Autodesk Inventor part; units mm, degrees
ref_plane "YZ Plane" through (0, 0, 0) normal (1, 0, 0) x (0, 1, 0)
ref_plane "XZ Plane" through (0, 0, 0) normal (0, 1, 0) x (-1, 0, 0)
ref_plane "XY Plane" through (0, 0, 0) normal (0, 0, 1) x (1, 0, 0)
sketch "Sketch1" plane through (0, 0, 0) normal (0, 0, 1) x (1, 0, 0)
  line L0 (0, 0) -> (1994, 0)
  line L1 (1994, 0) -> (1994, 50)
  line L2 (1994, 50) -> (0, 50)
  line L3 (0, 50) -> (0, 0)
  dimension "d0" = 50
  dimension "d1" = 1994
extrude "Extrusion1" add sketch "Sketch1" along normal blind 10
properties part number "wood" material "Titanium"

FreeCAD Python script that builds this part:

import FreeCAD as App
import Part
import Sketcher
Q = App.Units.Quantity


def add_polygon(sketch, points):
    """Adds a closed chain of lines whose ends are joined by coincident constraints."""
    first, n = sketch.GeometryCount, len(points)
    for a, b in zip(points, points[1:] + points[:1]):
        sketch.addGeometry(Part.LineSegment(App.Vector(*a, 0), App.Vector(*b, 0)), False)
    for i in range(n):
        sketch.addConstraint(Sketcher.Constraint("Coincident", first + i, 2, first + (i + 1) % n, 1))

doc = App.newDocument("Part")
body = doc.addObject("PartDesign::Body", "Body")

# Sketch on XY plane
sketch1 = body.newObject("Sketcher::SketchObject", "Sketch")
sketch1.AttachmentSupport = (doc.getObject("XY_Plane"), [""])
sketch1.MapMode = "FlatFace"
add_polygon(sketch1, [(0, 50), (0, 0), (1994, 0), (1994, 50)])  # lines 0-3
sketch1.addConstraint(Sketcher.Constraint("Vertical", 0))
sketch1.addConstraint(Sketcher.Constraint("Horizontal", 1))
sketch1.addConstraint(Sketcher.Constraint("Vertical", 2))
sketch1.addConstraint(Sketcher.Constraint("Horizontal", 3))
sketch1.addConstraint(Sketcher.Constraint("Coincident", 0, 2, -1, 1))
sketch1.addConstraint(Sketcher.Constraint("DistanceX", 1, 1, 1, 2, Q("1994 mm")))
sketch1.addConstraint(Sketcher.Constraint("DistanceY", 0, 2, 0, 1, Q("50 mm")))
pad1 = body.newObject("PartDesign::Pad", "Pad")
pad1.Profile = sketch1
pad1.Length = 10

doc.recompute()
